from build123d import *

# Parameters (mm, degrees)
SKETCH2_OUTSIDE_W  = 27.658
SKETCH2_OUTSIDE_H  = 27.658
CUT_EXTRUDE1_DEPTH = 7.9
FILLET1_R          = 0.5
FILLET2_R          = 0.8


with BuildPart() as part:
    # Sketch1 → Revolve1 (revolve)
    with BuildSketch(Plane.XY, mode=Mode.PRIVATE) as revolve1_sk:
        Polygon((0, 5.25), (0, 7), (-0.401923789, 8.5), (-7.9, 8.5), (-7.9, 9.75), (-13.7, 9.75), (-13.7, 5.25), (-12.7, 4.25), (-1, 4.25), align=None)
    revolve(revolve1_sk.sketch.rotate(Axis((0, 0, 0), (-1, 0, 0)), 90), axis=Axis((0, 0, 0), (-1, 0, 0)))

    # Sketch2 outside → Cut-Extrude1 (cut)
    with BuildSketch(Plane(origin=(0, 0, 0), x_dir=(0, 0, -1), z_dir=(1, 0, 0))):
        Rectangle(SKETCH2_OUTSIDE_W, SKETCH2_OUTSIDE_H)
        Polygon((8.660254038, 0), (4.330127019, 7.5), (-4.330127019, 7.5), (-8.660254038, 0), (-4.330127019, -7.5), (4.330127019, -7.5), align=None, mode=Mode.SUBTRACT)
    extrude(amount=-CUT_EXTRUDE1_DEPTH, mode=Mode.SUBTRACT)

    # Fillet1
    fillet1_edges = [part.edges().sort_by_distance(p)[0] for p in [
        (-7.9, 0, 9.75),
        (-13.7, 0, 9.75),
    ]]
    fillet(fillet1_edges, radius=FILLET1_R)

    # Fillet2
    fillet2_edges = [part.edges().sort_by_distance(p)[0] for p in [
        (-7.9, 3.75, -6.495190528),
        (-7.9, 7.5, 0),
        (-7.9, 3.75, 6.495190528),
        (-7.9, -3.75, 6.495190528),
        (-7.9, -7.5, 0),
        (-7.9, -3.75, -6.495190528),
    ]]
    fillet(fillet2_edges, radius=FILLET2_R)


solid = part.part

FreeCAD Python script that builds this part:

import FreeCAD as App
import Part
import Sketcher
from FreeCAD import Vector
Q = App.Units.Quantity


def edges_at(feature, points):
    """Names of the edges that pass closest to the given points."""
    edges = feature.Shape.Edges
    near = lambda p: min(range(len(edges)), key=lambda i: edges[i].distToShape(Part.Vertex(*p))[0])
    return sorted({f"Edge{near(p) + 1}" for p in points})

doc = App.newDocument("Part")
body = doc.addObject("PartDesign::Body", "Body")

sketch1 = body.newObject("Sketcher::SketchObject", "Sketch")
sketch1.AttachmentSupport = (doc.getObject("XY_Plane"), [""])
sketch1.MapMode = "FlatFace"
sketch1.addGeometry([
    Part.LineSegment(Vector(0, 5.2, 0), Vector(0, 7, 0)),
    Part.LineSegment(Vector(0, 7, 0), Vector(-0.4, 8.5, 0)),
    Part.LineSegment(Vector(-0.4, 8.5, 0), Vector(-7.9, 8.5, 0)),
    Part.LineSegment(Vector(-7.9, 8.5, 0), Vector(-7.9, 9.8, 0)),
    Part.LineSegment(Vector(-7.9, 9.8, 0), Vector(-13.7, 9.8, 0)),
    Part.LineSegment(Vector(-13.7, 9.8, 0), Vector(-13.7, 5.2, 0)),
    Part.LineSegment(Vector(-13.7, 5.2, 0), Vector(-12.7, 4.2, 0)),
    Part.LineSegment(Vector(-12.7, 4.2, 0), Vector(-1, 4.2, 0)),
    Part.LineSegment(Vector(-1, 4.2, 0), Vector(0, 5.2, 0)),
], False)
sketch1.addConstraint([
    Sketcher.Constraint("Coincident", 0, 2, 1, 1),
    Sketcher.Constraint("Coincident", 1, 2, 2, 1),
    Sketcher.Constraint("Coincident", 2, 2, 3, 1),
    Sketcher.Constraint("Coincident", 3, 2, 4, 1),
    Sketcher.Constraint("Coincident", 4, 2, 5, 1),
    Sketcher.Constraint("Coincident", 5, 2, 6, 1),
    Sketcher.Constraint("Coincident", 6, 2, 7, 1),
    Sketcher.Constraint("Coincident", 7, 2, 8, 1),
    Sketcher.Constraint("Coincident", 8, 2, 0, 1),
    Sketcher.Constraint("Vertical", 0),
    Sketcher.Constraint("Horizontal", 2),
    Sketcher.Constraint("Vertical", 3),
    Sketcher.Constraint("Horizontal", 4),
    Sketcher.Constraint("Vertical", 5),
    Sketcher.Constraint("Horizontal", 7),
    Sketcher.Constraint("PointOnObject", 0, 2, -2),
    Sketcher.Constraint("Perpendicular", 6, 8),
    Sketcher.Constraint("Horizontal", 5, 2, 8, 2),
    Sketcher.Constraint("Equal", 6, 8),
    Sketcher.Constraint("Angle", 1, Q("105 deg")),
    Sketcher.Constraint("DistanceX", 4, 2, 4, 1, Q("5.8 mm")),
    Sketcher.Constraint("DistanceX", 7, 1, 7, 2, Q("11.7 mm")),
    Sketcher.Constraint("DistanceY", 5, 2, 5, 1, Q("4.5 mm")),
    Sketcher.Constraint("DistanceY", -1, 1, 0, 2, Q("7 mm")),
    Sketcher.Constraint("DistanceX", 7, 2, -1, 1, Q("1 mm")),
    Sketcher.Constraint("DistanceY", 0, 1, 0, 2, Q("1.75 mm")),
    Sketcher.Constraint("DistanceY", 3, 1, 3, 2, Q("1.25 mm")),
])
revolution = body.newObject("PartDesign::Revolution", "Revolution")
revolution.Profile = sketch1
revolution.ReferenceAxis = (sketch1, ["H_Axis"])
revolution.Angle = 360

sketch2 = body.newObject("Sketcher::SketchObject", "Sketch001")
sketch2.AttachmentSupport = (doc.getObject("YZ_Plane"), [""])
sketch2.MapMode = "FlatFace"
sketch2.addGeometry([
    Part.LineSegment(Vector(14, 14, 0), Vector(-14, 14, 0)),
    Part.LineSegment(Vector(-14, 14, 0), Vector(-14, -14, 0)),
    Part.LineSegment(Vector(-14, -14, 0), Vector(14, -14, 0)),
    Part.LineSegment(Vector(14, -14, 0), Vector(14, 14, 0)),
    Part.LineSegment(Vector(8, -4, 0), Vector(0, -9, 0)),
    Part.LineSegment(Vector(0, -9, 0), Vector(-8, -4, 0)),
    Part.LineSegment(Vector(-8, -4, 0), Vector(-8, 4, 0)),
    Part.LineSegment(Vector(-8, 4, 0), Vector(0, 9, 0)),
    Part.LineSegment(Vector(0, 9, 0), Vector(8, 4, 0)),
    Part.LineSegment(Vector(8, 4, 0), Vector(8, -4, 0)),
], False)
sketch2.addConstraint([
    Sketcher.Constraint("Coincident", 0, 2, 1, 1),
    Sketcher.Constraint("Coincident", 1, 2, 2, 1),
    Sketcher.Constraint("Coincident", 2, 2, 3, 1),
    Sketcher.Constraint("Coincident", 3, 2, 0, 1),
    Sketcher.Constraint("Coincident", 4, 2, 5, 1),
    Sketcher.Constraint("Coincident", 5, 2, 6, 1),
    Sketcher.Constraint("Coincident", 6, 2, 7, 1),
    Sketcher.Constraint("Coincident", 7, 2, 8, 1),
    Sketcher.Constraint("Coincident", 8, 2, 9, 1),
    Sketcher.Constraint("Coincident", 9, 2, 4, 1),
    Sketcher.Constraint("Horizontal", 0),
    Sketcher.Constraint("Vertical", 1),
    Sketcher.Constraint("Horizontal", 2),
    Sketcher.Constraint("Vertical", 3),
    Sketcher.Constraint("Vertical", 6),
    Sketcher.Constraint("Vertical", 9),
    Sketcher.Constraint("Symmetric", 0, 2, 2, 2, -1, 1),
    Sketcher.Constraint("Symmetric", 4, 2, 7, 2, -1, 1),
    Sketcher.Constraint("Symmetric", 5, 2, 8, 2, -1, 1),
    Sketcher.Constraint("PointOnObject", 4, 2, -2),
    Sketcher.Constraint("Parallel", 4, 7),
    Sketcher.Constraint("Horizontal", 6, 2, 8, 2),
    Sketcher.Constraint("Equal", 2, 1),
    Sketcher.Constraint("Angle", 4, Q("-150 deg")),
    Sketcher.Constraint("DistanceX", 6, 2, 8, 2, Q("15 mm")),
    Sketcher.Constraint("DistanceX", 0, 2, 0, 1, Q("27.658 mm")),
    Sketcher.Constraint("DistanceY", 6, 1, 6, 2, Q("8.660254 mm")),
])
pocket1 = body.newObject("PartDesign::Pocket", "Pocket")
pocket1.Profile = sketch2
pocket1.Length = 7.9
doc.recompute()

fillet = body.newObject("PartDesign::Fillet", "Fillet")
fillet.Base = (pocket1, edges_at(pocket1, [(-7.9, 0, 9.75), (-13.7, 0, 9.75)]))
fillet.Radius = 0.5
doc.recompute()

fillet2 = body.newObject("PartDesign::Fillet", "Fillet001")
fillet2.Base = (fillet, edges_at(fillet, [
    (-7.9, 3.75, -6.495),
    (-7.9, 7.5, 0),
    (-7.9, 3.75, 6.495),
    (-7.9, -3.75, 6.495),
    (-7.9, -7.5, 0),
    (-7.9, -3.75, -6.495),
]))
fillet2.Radius = 0.8

doc.recompute()
